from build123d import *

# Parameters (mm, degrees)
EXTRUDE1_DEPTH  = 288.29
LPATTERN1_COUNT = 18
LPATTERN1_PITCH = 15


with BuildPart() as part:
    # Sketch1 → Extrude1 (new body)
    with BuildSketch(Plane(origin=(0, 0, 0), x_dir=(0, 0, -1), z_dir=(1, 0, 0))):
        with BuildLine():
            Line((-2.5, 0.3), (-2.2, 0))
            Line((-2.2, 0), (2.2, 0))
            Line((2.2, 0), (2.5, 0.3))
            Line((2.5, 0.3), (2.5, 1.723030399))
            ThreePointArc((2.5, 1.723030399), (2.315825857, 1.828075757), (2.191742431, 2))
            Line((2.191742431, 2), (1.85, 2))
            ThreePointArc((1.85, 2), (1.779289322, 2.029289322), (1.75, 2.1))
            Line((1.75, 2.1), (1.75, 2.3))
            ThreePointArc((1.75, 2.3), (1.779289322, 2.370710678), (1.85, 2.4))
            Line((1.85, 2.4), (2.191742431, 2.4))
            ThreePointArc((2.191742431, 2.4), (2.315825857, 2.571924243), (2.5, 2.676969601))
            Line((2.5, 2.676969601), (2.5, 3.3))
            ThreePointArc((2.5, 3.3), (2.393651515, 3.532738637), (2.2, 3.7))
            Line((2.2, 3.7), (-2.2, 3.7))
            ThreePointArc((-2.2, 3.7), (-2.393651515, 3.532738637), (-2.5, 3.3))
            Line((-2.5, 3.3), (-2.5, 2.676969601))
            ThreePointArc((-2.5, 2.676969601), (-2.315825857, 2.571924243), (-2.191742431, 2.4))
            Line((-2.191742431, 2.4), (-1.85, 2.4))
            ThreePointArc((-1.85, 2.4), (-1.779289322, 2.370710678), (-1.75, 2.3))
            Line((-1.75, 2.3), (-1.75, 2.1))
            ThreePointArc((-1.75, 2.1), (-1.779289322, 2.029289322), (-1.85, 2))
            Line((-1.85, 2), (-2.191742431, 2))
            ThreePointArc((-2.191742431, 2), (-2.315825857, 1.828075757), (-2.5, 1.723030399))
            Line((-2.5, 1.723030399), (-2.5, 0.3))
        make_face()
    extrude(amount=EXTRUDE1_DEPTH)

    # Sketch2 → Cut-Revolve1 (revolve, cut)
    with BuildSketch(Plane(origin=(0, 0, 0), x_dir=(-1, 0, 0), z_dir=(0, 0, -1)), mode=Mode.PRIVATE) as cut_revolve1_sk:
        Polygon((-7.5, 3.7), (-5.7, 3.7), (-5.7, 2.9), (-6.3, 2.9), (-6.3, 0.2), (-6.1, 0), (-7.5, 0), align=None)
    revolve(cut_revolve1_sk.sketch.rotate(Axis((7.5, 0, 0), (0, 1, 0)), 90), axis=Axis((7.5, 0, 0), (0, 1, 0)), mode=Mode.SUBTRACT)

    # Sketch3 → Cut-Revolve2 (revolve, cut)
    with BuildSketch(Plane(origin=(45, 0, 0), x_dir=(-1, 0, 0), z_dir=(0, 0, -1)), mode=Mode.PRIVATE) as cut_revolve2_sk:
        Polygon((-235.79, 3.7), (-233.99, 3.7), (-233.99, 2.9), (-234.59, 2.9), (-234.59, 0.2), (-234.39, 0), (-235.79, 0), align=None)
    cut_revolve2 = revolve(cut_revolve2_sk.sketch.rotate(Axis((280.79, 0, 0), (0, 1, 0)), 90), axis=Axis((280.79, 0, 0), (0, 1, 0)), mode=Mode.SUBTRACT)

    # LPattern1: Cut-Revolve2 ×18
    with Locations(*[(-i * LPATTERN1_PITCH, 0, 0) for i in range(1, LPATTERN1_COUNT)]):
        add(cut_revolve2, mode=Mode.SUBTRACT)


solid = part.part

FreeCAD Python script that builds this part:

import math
import FreeCAD as App
import Part
import Sketcher

V = App.Vector
Q = App.Units.Quantity


def add_polygon(sketch, points):
    """Adds a closed chain of lines whose ends are joined by coincident constraints."""
    first, n = sketch.GeometryCount, len(points)
    for a, b in zip(points, points[1:] + points[:1]):
        sketch.addGeometry(Part.LineSegment(App.Vector(*a, 0), App.Vector(*b, 0)), False)
    for i in range(n):
        sketch.addConstraint(Sketcher.Constraint("Coincident", first + i, 2, first + (i + 1) % n, 1))

doc = App.newDocument("Part")
body = doc.addObject("PartDesign::Body", "Body")

sketch1 = body.newObject("Sketcher::SketchObject", "Sketch")
sketch1.AttachmentSupport = (doc.getObject("YZ_Plane"), [""])
sketch1.MapMode = "FlatFace"
sketch1.addGeometry([
    Part.LineSegment(V(0.3, 2.5, 0), V(0, 2.2, 0)),
    Part.LineSegment(V(0, 2.2, 0), V(0, -2.2, 0)),
    Part.LineSegment(V(0, -2.2, 0), V(0.3, -2.5, 0)),
    Part.LineSegment(V(0.3, -2.5, 0), V(1.72, -2.5, 0)),
    Part.ArcOfCircle(Part.Circle(V(2.2, -2.65, 0), V(0, 0, 1), 0.5), math.radians(114), math.radians(163)),
    Part.LineSegment(V(2, -2.19, 0), V(2, -1.85, 0)),
    Part.ArcOfCircle(Part.Circle(V(2.1, -1.85, 0), V(0, 0, 1), 0.1), math.radians(90), math.radians(180)),
    Part.LineSegment(V(2.1, -1.75, 0), V(2.3, -1.75, 0)),
    Part.ArcOfCircle(Part.Circle(V(2.3, -1.85, 0), V(0, 0, 1), 0.1), math.radians(0), math.radians(90)),
    Part.LineSegment(V(2.4, -1.85, 0), V(2.4, -2.19, 0)),
    Part.ArcOfCircle(Part.Circle(V(2.2, -2.65, 0), V(0, 0, 1), 0.5), math.radians(17), math.radians(66)),
    Part.LineSegment(V(2.68, -2.5, 0), V(3.3, -2.5, 0)),
    Part.ArcOfCircle(Part.Circle(V(3.17, -1.91, 0), V(0, 0, 1), 0.6), math.radians(-78), math.radians(-29)),
    Part.LineSegment(V(3.7, -2.2, 0), V(3.7, 2.2, 0)),
    Part.ArcOfCircle(Part.Circle(V(3.17, 1.91, 0), V(0, 0, 1), 0.6), math.radians(29), math.radians(78)),
    Part.LineSegment(V(3.3, 2.5, 0), V(2.68, 2.5, 0)),
    Part.ArcOfCircle(Part.Circle(V(2.2, 2.65, 0), V(0, 0, 1), 0.5), math.radians(-66), math.radians(-17)),
    Part.LineSegment(V(2.4, 2.19, 0), V(2.4, 1.85, 0)),
    Part.ArcOfCircle(Part.Circle(V(2.3, 1.85, 0), V(0, 0, 1), 0.1), math.radians(-90), math.radians(0)),
    Part.LineSegment(V(2.3, 1.75, 0), V(2.1, 1.75, 0)),
    Part.ArcOfCircle(Part.Circle(V(2.1, 1.85, 0), V(0, 0, 1), 0.1), math.radians(180), math.radians(270)),
    Part.LineSegment(V(2, 1.85, 0), V(2, 2.19, 0)),
    Part.ArcOfCircle(Part.Circle(V(2.2, 2.65, 0), V(0, 0, 1), 0.5), math.radians(-163), math.radians(-114)),
    Part.LineSegment(V(1.72, 2.5, 0), V(0.3, 2.5, 0)),
], False)
sketch1.addConstraint([
    Sketcher.Constraint("Coincident", 0, 2, 1, 1),
    Sketcher.Constraint("Coincident", 1, 2, 2, 1),
    Sketcher.Constraint("Coincident", 2, 2, 3, 1),
    Sketcher.Constraint("Coincident", 3, 2, 4, 2),
    Sketcher.Constraint("Coincident", 4, 1, 5, 1),
    Sketcher.Constraint("Tangent", 5, 2, 6, 2),
    Sketcher.Constraint("Tangent", 6, 1, 7, 1),
    Sketcher.Constraint("Tangent", 7, 2, 8, 2),
    Sketcher.Constraint("Tangent", 8, 1, 9, 1),
    Sketcher.Constraint("Coincident", 9, 2, 10, 2),
    Sketcher.Constraint("Coincident", 10, 1, 11, 1),
    Sketcher.Constraint("Coincident", 11, 2, 12, 1),
    Sketcher.Constraint("Coincident", 12, 2, 13, 1),
    Sketcher.Constraint("Coincident", 13, 2, 14, 1),
    Sketcher.Constraint("Coincident", 14, 2, 15, 1),
    Sketcher.Constraint("Coincident", 15, 2, 16, 2),
    Sketcher.Constraint("Coincident", 16, 1, 17, 1),
    Sketcher.Constraint("Tangent", 17, 2, 18, 2),
    Sketcher.Constraint("Tangent", 18, 1, 19, 1),
    Sketcher.Constraint("Tangent", 19, 2, 20, 2),
    Sketcher.Constraint("Tangent", 20, 1, 21, 1),
    Sketcher.Constraint("Coincident", 21, 2, 22, 2),
    Sketcher.Constraint("Coincident", 22, 1, 23, 1),
    Sketcher.Constraint("Coincident", 23, 2, 0, 1),
    Sketcher.Constraint("Vertical", 1),
    Sketcher.Constraint("Horizontal", 3),
    Sketcher.Constraint("Vertical", 5),
    Sketcher.Constraint("Horizontal", 7),
    Sketcher.Constraint("Vertical", 9),
    Sketcher.Constraint("Horizontal", 11),
    Sketcher.Constraint("Vertical", 13),
    Sketcher.Constraint("Horizontal", 15),
    Sketcher.Constraint("Vertical", 17),
    Sketcher.Constraint("Horizontal", 19),
    Sketcher.Constraint("Vertical", 21),
    Sketcher.Constraint("Horizontal", 23),
    Sketcher.Constraint("Coincident", 10, 3, 4, 3),
    Sketcher.Constraint("Coincident", 22, 3, 16, 3),
    Sketcher.Constraint("Equal", 6, 8),
    Sketcher.Constraint("Equal", 4, 10),
    Sketcher.Constraint("Equal", 12, 14),
    Sketcher.Constraint("Equal", 10, 16),
    Sketcher.Constraint("Equal", 8, 18),
    Sketcher.Constraint("Equal", 18, 20),
    Sketcher.Constraint("Equal", 16, 22),
    Sketcher.Constraint("Symmetric", 0, 2, 1, 2, -1, 1),
    Sketcher.Constraint("Symmetric", 12, 3, 14, 3, -1),
    Sketcher.Constraint("Symmetric", 4, 3, 16, 3, -1),
    Sketcher.Constraint("Symmetric", 8, 3, 18, 3, -1),
    Sketcher.Constraint("Symmetric", 2, 2, 23, 2, -1),
    Sketcher.Constraint("Perpendicular", 0, 2),
    Sketcher.Constraint("Horizontal", 4, 1, 9, 2),
    Sketcher.Constraint("Horizontal", 3, 2, 10, 1),
    Sketcher.Constraint("Horizontal", 1, 2, 12, 2),
    Sketcher.Constraint("Horizontal", 16, 1, 21, 2),
    Sketcher.Constraint("Horizontal", 15, 2, 22, 1),
    Sketcher.Constraint("Radius", 4, 0.5),
    Sketcher.Constraint("Radius", 6, 0.1),
    Sketcher.Constraint("Radius", 12, 0.6),
    Sketcher.Constraint("DistanceX", 7, 1, 7, 2, 0.2),
    Sketcher.Constraint("DistanceY", 1, 2, 1, 1, 4.4),
    Sketcher.Constraint("DistanceX", -1, 1, 4, 1, 2.0),
    Sketcher.Constraint("DistanceX", 2, 2, 8, 3, 2.0),
    Sketcher.Constraint("DistanceX", 18, 3, 14, 2, 1.0),
    Sketcher.Constraint("DistanceX", -1, 1, 12, 2, 3.7),
    Sketcher.Constraint("DistanceY", 4, 3, 6, 3, 0.8),
    Sketcher.Constraint("DistanceY", 8, 3, 16, 3, 4.5),
])
pad1 = body.newObject("PartDesign::Pad", "Pad")
pad1.Profile = sketch1
pad1.Length = 288.29

sketch2 = body.newObject("Sketcher::SketchObject", "Sketch001")
sketch2.AttachmentSupport = (doc.getObject("XY_Plane"), [""])
sketch2.MapMode = "FlatFace"
add_polygon(sketch2, [(5.7, 3.7), (7.5, 3.7), (7.5, 0), (6.1, 0), (6.3, 0.2), (6.3, 2.9), (5.7, 2.9)])
sketch2.addGeometry(Part.LineSegment(V(7.5, 0, 0), V(7.5, 3.7, 0)), True)
sketch2.addConstraint([
    Sketcher.Constraint("Horizontal", 0),
    Sketcher.Constraint("Vertical", 1),
    Sketcher.Constraint("Horizontal", 2),
    Sketcher.Constraint("Vertical", 4),
    Sketcher.Constraint("Horizontal", 5),
    Sketcher.Constraint("Vertical", 6),
    Sketcher.Constraint("Vertical", 7),
    Sketcher.Constraint("Coincident", 7, 1, 1, 2),
    Sketcher.Constraint("PointOnObject", 1, 2, -1),
    Sketcher.Constraint("Horizontal", 6, 2, 7, 2),
    Sketcher.Constraint("Angle", 3, Q("45 deg")),
    Sketcher.Constraint("DistanceX", 0, 1, 0, 2, 1.8),
    Sketcher.Constraint("DistanceX", 2, 2, 2, 1, 1.4),
    Sketcher.Constraint("DistanceX", 5, 2, 5, 1, 0.6),
    Sketcher.Constraint("DistanceY", 1, 2, 1, 1, 3.7),
    Sketcher.Constraint("DistanceY", 4, 1, 4, 2, 2.7),
    Sketcher.Constraint("DistanceX", -1, 1, 0, 2, 7.5),
])
groove = body.newObject("PartDesign::Groove", "Groove")
groove.Profile = sketch2
groove.ReferenceAxis = (sketch2, ["Axis0"])
groove.Angle = 360

sketch3 = body.newObject("Sketcher::SketchObject", "Sketch002")
sketch3.AttachmentSupport = (doc.getObject("XY_Plane"), [""])
sketch3.MapMode = "FlatFace"
add_polygon(sketch3, [(278.99, 3.7), (280.79, 3.7), (280.79, 0), (279.39, 0), (279.59, 0.2), (279.59, 2.9), (278.99, 2.9)])
sketch3.addGeometry(Part.LineSegment(V(280.79, 0, 0), V(280.79, 3.7, 0)), True)
sketch3.addConstraint([
    Sketcher.Constraint("Horizontal", 0),
    Sketcher.Constraint("Vertical", 1),
    Sketcher.Constraint("Horizontal", 2),
    Sketcher.Constraint("Vertical", 4),
    Sketcher.Constraint("Horizontal", 5),
    Sketcher.Constraint("Vertical", 6),
    Sketcher.Constraint("Vertical", 7),
    Sketcher.Constraint("Coincident", 7, 1, 1, 2),
    Sketcher.Constraint("PointOnObject", 1, 2, -1),
    Sketcher.Constraint("Horizontal", 6, 2, 7, 2),
    Sketcher.Constraint("Angle", 3, Q("45 deg")),
    Sketcher.Constraint("DistanceX", 0, 1, 0, 2, 1.8),
    Sketcher.Constraint("DistanceX", 2, 2, 2, 1, 1.4),
    Sketcher.Constraint("DistanceX", 5, 2, 5, 1, 0.6),
    Sketcher.Constraint("DistanceY", 1, 2, 1, 1, 3.7),
    Sketcher.Constraint("DistanceY", 4, 1, 4, 2, 2.7),
    Sketcher.Constraint("DistanceX", -1, 1, 0, 2, 280.79),
])
groove2 = body.newObject("PartDesign::Groove", "Groove001")
groove2.Profile = sketch3
groove2.ReferenceAxis = (sketch3, ["Axis0"])
groove2.Angle = 360
doc.recompute()

linearpattern = body.newObject("PartDesign::LinearPattern", "LinearPattern")
linearpattern.Originals = [groove2]
linearpattern.Direction = (doc.getObject("X_Axis"), [""])
linearpattern.Mode = "offset"
linearpattern.Offset = 15
linearpattern.Occurrences = 18
linearpattern.Reversed = True
body.Tip = linearpattern

doc.recompute()
